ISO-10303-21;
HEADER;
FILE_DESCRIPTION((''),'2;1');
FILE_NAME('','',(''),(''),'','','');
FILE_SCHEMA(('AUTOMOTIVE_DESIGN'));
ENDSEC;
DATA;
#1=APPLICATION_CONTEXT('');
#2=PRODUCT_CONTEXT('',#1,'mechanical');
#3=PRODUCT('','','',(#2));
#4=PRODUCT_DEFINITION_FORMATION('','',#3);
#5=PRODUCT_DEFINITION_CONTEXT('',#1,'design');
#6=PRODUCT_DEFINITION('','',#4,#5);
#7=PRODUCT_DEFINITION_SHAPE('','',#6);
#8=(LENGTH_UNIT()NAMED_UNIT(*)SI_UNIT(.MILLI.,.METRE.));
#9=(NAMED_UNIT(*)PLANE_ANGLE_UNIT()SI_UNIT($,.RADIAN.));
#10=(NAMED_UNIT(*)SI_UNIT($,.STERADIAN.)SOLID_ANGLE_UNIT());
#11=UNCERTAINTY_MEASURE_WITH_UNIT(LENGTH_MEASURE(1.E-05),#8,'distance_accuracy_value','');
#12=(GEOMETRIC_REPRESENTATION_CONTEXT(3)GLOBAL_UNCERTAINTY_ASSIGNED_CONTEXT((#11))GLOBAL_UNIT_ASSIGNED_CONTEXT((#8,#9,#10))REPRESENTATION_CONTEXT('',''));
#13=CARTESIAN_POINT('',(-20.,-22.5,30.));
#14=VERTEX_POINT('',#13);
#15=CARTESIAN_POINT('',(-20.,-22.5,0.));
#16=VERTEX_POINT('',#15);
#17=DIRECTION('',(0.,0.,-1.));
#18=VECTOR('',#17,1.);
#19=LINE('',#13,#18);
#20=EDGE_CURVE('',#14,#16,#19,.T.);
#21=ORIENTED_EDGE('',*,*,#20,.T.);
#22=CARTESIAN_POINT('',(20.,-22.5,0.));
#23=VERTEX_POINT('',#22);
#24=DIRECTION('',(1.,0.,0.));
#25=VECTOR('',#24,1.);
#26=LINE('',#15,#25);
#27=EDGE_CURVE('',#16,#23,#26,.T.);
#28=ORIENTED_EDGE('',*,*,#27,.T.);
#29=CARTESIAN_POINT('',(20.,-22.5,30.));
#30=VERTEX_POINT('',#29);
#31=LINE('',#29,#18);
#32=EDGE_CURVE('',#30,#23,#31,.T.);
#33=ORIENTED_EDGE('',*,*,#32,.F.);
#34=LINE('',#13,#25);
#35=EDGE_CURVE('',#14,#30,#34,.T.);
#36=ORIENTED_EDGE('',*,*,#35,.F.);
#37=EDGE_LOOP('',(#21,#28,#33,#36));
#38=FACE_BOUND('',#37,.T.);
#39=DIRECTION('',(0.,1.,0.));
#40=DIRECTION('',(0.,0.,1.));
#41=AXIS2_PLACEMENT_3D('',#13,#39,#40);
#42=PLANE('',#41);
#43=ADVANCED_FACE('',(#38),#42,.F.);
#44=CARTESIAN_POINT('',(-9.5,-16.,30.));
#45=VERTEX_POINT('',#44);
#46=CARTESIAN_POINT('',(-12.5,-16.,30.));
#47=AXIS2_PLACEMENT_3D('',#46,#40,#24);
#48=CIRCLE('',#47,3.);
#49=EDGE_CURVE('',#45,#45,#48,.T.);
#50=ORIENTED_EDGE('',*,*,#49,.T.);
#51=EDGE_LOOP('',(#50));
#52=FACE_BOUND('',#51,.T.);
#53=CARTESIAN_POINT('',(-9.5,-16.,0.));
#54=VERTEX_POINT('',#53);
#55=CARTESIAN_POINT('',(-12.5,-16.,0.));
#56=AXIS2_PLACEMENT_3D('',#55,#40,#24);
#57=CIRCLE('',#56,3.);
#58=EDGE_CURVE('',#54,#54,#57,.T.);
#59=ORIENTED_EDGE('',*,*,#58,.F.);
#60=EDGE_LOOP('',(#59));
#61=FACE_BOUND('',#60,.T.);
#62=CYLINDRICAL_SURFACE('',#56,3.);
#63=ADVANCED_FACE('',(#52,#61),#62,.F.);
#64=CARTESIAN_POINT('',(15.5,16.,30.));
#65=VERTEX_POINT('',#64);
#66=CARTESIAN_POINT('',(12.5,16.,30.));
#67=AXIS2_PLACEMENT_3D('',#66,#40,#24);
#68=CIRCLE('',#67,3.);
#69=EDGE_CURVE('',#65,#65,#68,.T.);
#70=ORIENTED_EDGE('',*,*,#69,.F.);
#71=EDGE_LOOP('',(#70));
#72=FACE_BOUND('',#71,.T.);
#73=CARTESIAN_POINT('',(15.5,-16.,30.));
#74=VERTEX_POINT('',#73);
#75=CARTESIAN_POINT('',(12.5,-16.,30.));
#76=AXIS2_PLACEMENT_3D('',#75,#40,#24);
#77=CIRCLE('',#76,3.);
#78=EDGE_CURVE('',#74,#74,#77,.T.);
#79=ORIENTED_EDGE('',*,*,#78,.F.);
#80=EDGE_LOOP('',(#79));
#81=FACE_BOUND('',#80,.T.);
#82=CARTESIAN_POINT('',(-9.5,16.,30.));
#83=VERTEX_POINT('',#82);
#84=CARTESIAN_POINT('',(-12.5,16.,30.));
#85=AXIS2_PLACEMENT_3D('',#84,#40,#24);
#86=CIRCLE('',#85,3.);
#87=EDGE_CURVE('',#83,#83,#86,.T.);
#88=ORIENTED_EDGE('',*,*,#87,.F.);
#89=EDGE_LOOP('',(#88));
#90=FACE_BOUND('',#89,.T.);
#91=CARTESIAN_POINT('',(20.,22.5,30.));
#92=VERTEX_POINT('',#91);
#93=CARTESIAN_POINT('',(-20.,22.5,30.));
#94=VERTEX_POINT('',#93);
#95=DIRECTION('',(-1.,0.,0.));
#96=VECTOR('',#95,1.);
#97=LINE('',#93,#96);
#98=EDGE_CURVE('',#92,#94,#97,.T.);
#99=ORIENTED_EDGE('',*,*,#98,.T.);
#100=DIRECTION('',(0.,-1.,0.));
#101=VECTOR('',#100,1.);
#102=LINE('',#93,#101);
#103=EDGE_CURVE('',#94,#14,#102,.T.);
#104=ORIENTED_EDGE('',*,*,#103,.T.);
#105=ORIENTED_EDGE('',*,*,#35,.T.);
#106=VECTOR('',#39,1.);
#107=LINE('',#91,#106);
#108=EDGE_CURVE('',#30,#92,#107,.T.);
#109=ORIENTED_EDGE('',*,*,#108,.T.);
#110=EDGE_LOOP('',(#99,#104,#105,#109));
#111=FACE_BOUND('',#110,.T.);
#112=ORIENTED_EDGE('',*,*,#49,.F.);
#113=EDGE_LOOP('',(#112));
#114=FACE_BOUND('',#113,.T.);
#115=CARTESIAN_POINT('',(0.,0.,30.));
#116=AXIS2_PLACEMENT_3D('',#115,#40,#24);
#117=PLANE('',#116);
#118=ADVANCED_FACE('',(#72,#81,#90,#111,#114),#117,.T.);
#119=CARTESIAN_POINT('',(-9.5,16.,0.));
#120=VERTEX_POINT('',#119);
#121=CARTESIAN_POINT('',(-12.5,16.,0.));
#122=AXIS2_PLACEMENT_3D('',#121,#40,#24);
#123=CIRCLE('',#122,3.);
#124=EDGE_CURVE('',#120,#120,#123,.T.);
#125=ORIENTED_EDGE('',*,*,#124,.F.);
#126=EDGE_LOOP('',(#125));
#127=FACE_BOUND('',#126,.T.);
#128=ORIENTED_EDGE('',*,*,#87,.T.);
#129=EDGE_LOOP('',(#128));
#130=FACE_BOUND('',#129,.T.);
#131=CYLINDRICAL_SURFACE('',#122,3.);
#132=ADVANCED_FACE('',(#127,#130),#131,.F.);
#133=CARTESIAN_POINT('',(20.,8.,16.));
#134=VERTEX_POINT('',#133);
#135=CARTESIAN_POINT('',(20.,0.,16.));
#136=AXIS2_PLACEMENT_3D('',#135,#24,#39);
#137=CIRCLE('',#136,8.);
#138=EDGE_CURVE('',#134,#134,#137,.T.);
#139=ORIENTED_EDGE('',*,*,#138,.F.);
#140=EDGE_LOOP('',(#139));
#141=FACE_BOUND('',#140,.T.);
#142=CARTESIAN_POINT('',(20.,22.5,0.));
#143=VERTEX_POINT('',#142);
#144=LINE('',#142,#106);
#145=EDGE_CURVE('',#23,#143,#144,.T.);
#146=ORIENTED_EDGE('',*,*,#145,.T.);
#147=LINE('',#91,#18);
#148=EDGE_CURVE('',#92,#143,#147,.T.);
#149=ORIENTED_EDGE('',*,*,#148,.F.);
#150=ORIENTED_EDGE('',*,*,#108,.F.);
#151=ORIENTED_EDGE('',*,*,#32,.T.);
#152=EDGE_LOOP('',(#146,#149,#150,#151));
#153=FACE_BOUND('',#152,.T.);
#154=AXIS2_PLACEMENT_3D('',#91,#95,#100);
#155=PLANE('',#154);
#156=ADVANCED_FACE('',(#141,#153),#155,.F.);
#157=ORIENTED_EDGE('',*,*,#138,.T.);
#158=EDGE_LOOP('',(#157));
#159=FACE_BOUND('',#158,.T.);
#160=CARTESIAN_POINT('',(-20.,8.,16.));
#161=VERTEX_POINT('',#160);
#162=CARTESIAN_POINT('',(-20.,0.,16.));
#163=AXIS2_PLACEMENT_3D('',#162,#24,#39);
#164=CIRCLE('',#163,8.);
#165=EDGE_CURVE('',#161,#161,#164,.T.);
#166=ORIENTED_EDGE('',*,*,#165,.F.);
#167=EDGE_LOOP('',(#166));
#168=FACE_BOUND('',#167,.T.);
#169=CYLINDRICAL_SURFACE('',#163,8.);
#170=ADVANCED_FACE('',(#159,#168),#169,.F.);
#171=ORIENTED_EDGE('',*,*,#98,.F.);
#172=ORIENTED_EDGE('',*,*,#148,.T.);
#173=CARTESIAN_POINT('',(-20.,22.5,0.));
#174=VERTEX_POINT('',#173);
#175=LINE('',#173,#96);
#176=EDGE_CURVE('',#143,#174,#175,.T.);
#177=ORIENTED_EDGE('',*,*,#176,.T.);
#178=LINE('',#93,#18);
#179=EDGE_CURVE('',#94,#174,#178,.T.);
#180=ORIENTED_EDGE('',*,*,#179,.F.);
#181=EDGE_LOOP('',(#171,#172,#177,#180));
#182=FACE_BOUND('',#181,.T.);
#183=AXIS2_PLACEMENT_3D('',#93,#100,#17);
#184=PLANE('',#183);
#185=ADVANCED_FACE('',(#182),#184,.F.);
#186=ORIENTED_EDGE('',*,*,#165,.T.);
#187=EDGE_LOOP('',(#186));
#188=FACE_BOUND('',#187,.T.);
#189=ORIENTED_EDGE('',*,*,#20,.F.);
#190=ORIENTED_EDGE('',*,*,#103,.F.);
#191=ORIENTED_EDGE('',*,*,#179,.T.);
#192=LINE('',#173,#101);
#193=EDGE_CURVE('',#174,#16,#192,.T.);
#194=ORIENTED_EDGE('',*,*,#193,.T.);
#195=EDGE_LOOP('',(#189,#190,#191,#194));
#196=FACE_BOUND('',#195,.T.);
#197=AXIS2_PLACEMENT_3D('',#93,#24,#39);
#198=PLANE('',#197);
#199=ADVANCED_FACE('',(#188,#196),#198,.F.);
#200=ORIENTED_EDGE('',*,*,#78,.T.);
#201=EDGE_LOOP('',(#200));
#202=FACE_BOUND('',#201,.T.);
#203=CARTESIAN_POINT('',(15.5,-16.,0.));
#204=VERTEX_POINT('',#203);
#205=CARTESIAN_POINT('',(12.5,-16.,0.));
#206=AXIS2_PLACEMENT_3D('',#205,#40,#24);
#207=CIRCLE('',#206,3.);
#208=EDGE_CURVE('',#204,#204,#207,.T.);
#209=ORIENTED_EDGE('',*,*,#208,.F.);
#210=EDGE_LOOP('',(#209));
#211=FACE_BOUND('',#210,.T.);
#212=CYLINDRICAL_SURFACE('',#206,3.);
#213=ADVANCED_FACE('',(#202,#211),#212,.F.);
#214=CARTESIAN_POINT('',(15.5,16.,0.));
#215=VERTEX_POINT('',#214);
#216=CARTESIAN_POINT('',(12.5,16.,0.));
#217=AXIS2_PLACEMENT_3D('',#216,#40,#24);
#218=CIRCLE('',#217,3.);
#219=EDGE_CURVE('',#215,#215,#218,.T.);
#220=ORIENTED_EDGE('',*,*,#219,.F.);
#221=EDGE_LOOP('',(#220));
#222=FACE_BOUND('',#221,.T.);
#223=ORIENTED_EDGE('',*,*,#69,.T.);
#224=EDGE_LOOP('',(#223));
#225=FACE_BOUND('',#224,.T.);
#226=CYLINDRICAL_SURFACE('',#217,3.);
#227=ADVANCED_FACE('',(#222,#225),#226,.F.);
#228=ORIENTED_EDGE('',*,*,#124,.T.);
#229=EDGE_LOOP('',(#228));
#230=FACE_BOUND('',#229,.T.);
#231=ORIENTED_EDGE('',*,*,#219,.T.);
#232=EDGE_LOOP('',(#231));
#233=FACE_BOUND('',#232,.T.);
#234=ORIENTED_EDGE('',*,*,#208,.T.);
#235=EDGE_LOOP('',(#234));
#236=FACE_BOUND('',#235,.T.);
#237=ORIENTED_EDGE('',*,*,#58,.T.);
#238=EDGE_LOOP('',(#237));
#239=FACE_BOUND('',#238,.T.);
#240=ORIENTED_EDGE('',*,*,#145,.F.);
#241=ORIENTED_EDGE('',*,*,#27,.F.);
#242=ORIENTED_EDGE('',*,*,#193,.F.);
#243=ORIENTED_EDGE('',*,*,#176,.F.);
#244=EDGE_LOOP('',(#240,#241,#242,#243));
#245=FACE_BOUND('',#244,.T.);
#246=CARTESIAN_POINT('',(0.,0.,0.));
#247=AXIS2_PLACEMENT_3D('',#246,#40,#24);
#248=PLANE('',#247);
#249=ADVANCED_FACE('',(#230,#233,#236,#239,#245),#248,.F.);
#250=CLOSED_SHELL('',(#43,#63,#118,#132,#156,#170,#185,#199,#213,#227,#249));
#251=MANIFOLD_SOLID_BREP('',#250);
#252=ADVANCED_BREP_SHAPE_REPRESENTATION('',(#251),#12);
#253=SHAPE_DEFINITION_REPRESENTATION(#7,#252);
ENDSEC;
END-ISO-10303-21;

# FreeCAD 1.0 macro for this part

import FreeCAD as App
import Part
import Sketcher
from FreeCAD import Vector


def add_polygon(sketch, points):
    """Adds a closed chain of lines whose ends are joined by coincident constraints."""
    first, n = sketch.GeometryCount, len(points)
    for a, b in zip(points, points[1:] + points[:1]):
        sketch.addGeometry(Part.LineSegment(App.Vector(*a, 0), App.Vector(*b, 0)), False)
    for i in range(n):
        sketch.addConstraint(Sketcher.Constraint("Coincident", first + i, 2, first + (i + 1) % n, 1))

doc = App.newDocument("Part")
body = doc.addObject("PartDesign::Body", "Body")

sketch1 = body.newObject("Sketcher::SketchObject", "Sketch")
sketch1.AttachmentSupport = (doc.getObject("XY_Plane"), [""])
sketch1.MapMode = "FlatFace"
add_polygon(sketch1, [(-20, 22), (-20, -22), (20, -22), (20, 22)])
sketch1.addConstraint(Sketcher.Constraint("Vertical", 0))
sketch1.addConstraint(Sketcher.Constraint("Horizontal", 1))
sketch1.addConstraint(Sketcher.Constraint("Vertical", 2))
sketch1.addConstraint(Sketcher.Constraint("Horizontal", 3))
sketch1.addConstraint(Sketcher.Constraint("Symmetric", 0, 2, 2, 2, -1, 1))
sketch1.addConstraint(Sketcher.Constraint("DistanceX", 1, 1, 1, 2, 40.0))
sketch1.addConstraint(Sketcher.Constraint("DistanceY", 0, 2, 0, 1, 45.0))
pad1 = body.newObject("PartDesign::Pad", "Pad")
pad1.Profile = sketch1
pad1.Length = 30

sketch2 = body.newObject("Sketcher::SketchObject", "Sketch001")
sketch2.AttachmentSupport = (doc.getObject("YZ_Plane"), [""])
sketch2.MapMode = "FlatFace"
sketch2.AttachmentOffset = App.Placement(Vector(0, 0, 20), App.Rotation())
sketch2.addGeometry(Part.Circle(Vector(0, 16, 0), Vector(0, 0, 1), 8), False)
sketch2.addConstraint(Sketcher.Constraint("PointOnObject", 0, 3, -2))
sketch2.addConstraint(Sketcher.Constraint("Diameter", 0, 16.0))
sketch2.addConstraint(Sketcher.Constraint("DistanceY", -1, 1, 0, 3, 16.0))
pocket1 = body.newObject("PartDesign::Pocket", "Pocket")
pocket1.Profile = sketch2
pocket1.Type = "ThroughAll"

sketch3 = body.newObject("Sketcher::SketchObject", "Sketch002")
sketch3.AttachmentSupport = (doc.getObject("XY_Plane"), [""])
sketch3.MapMode = "FlatFace"
sketch3.AttachmentOffset = App.Placement(Vector(0, 0, 30), App.Rotation())
sketch3.addGeometry(Part.Circle(Vector(-12.5, 16, 0), Vector(0, 0, 1), 3), False)
sketch3.addGeometry(Part.Circle(Vector(12.5, 16, 0), Vector(0, 0, 1), 3), False)
sketch3.addGeometry(Part.Circle(Vector(12.5, -16, 0), Vector(0, 0, 1), 3), False)
sketch3.addGeometry(Part.Circle(Vector(-12.5, -16, 0), Vector(0, 0, 1), 3), False)
sketch3.addConstraint(Sketcher.Constraint("Equal", 0, 1))
sketch3.addConstraint(Sketcher.Constraint("Equal", 1, 2))
sketch3.addConstraint(Sketcher.Constraint("Equal", 2, 3))
sketch3.addConstraint(Sketcher.Constraint("Symmetric", 0, 3, 2, 3, -1, 1))
sketch3.addConstraint(Sketcher.Constraint("Symmetric", 1, 3, 3, 3, -1, 1))
sketch3.addConstraint(Sketcher.Constraint("Symmetric", 0, 3, 1, 3, -2))
sketch3.addConstraint(Sketcher.Constraint("Diameter", 0, 6.0))
sketch3.addConstraint(Sketcher.Constraint("DistanceY", -1, 1, 0, 3, 16.0))
sketch3.addConstraint(Sketcher.Constraint("DistanceX", 0, 3, 1, 3, 25.0))
pocket2 = body.newObject("PartDesign::Pocket", "Pocket001")
pocket2.Profile = sketch3
pocket2.Type = "ThroughAll"

doc.recompute()
